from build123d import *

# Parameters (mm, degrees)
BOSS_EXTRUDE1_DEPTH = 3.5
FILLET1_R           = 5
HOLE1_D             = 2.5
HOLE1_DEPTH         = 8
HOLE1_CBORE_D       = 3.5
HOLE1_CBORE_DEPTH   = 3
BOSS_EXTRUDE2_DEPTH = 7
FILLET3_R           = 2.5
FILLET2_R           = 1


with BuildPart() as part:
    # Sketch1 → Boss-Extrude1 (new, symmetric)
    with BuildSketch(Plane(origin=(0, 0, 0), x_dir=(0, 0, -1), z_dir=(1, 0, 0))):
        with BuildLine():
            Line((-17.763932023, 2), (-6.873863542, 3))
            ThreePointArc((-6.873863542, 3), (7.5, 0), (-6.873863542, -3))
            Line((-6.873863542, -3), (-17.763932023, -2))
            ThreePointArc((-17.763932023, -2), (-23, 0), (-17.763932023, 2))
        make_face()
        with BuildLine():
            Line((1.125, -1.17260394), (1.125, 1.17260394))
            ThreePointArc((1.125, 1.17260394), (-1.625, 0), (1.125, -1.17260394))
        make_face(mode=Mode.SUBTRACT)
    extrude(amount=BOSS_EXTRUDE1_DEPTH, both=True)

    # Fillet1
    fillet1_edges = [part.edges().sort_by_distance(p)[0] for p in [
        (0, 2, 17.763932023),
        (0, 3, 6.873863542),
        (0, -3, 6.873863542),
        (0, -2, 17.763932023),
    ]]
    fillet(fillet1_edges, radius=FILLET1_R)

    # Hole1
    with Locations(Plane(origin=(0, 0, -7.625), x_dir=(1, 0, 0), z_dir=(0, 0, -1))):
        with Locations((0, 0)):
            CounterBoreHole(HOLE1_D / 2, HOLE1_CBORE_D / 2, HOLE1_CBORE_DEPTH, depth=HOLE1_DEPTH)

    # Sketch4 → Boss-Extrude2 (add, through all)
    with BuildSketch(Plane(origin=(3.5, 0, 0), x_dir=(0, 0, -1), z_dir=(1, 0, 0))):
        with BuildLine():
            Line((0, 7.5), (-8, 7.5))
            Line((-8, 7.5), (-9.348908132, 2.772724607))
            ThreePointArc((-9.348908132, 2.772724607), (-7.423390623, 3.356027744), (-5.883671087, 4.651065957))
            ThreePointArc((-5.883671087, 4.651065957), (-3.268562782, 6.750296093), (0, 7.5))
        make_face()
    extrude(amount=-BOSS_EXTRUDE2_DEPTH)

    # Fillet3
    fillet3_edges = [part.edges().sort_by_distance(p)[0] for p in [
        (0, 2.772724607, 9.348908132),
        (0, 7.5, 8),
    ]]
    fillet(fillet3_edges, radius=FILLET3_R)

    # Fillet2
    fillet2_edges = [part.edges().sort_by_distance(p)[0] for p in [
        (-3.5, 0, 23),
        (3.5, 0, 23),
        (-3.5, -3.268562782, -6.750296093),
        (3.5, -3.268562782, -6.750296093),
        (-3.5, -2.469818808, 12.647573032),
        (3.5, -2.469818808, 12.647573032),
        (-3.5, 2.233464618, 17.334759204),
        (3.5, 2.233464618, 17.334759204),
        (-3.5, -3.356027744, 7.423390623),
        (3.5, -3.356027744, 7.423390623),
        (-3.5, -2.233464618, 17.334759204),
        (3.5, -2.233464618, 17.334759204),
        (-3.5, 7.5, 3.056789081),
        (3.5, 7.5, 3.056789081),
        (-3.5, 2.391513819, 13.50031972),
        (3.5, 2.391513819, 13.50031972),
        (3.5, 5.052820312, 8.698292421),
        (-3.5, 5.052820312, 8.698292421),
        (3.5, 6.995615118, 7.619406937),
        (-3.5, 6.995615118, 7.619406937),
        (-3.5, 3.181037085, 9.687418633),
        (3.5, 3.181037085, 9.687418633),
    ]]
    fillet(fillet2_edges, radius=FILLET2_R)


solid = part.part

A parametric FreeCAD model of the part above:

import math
import FreeCAD as App
import Part
import Sketcher
from FreeCAD import Vector
Q = App.Units.Quantity


def edges_at(feature, points):
    """Names of the edges that pass closest to the given points."""
    edges = feature.Shape.Edges
    near = lambda p: min(range(len(edges)), key=lambda i: edges[i].distToShape(Part.Vertex(*p))[0])
    return sorted({f"Edge{near(p) + 1}" for p in points})

doc = App.newDocument("Part")
body = doc.addObject("PartDesign::Body", "Body")

# Sketch on YZ plane
sketch1 = doc.addObject("Sketcher::SketchObject", "Sketch")
body.addObject(sketch1)
sketch1.AttachmentSupport = (doc.YZ_Plane, [""])
sketch1.MapMode = "FlatFace"
sketch1.addGeometry([
    Part.LineSegment(Vector(3, 6.9, 0), Vector(2, 17.8, 0)),  # 0
    Part.ArcOfCircle(Part.Circle(Vector(0, 20, 0), Vector(0, 0, 1), 3), math.radians(-48), math.radians(228)),  # 1
    Part.LineSegment(Vector(-2, 17.8, 0), Vector(-3, 6.9, 0)),  # 2
    Part.ArcOfCircle(Part.Circle(Vector(0, 0, 0), Vector(0, 0, 1), 7.5), math.radians(114), math.radians(426)),  # 3
    Part.ArcOfCircle(Part.Circle(Vector(0, 0, 0), Vector(0, 0, 1), 1.6), math.radians(-44), math.radians(224)),  # 4
    Part.LineSegment(Vector(1.2, -1.1, 0), Vector(-1.2, -1.1, 0)),  # 5
], False)
sketch1.addConstraint([
    Sketcher.Constraint("Coincident", 0, 2, 1, 1),
    Sketcher.Constraint("Coincident", 1, 2, 2, 1),
    Sketcher.Constraint("Coincident", 2, 2, 3, 1),
    Sketcher.Constraint("Coincident", 3, 2, 0, 1),
    Sketcher.Constraint("Coincident", 4, 1, 5, 1),
    Sketcher.Constraint("Coincident", 5, 2, 4, 2),
    Sketcher.Constraint("Horizontal", 5),
    Sketcher.Constraint("Coincident", 3, 3, -1, 1),
    Sketcher.Constraint("Coincident", 4, 3, -1, 1),
    Sketcher.Constraint("Symmetric", 0, 2, 1, 2, -2),
    Sketcher.Constraint("Horizontal", 2, 2, 3, 2),
    Sketcher.Constraint("Radius", 1, Q("3 mm")),
    Sketcher.Constraint("Radius", 3, Q("7.5 mm")),
    Sketcher.Constraint("DistanceY", -1, 1, 1, 3, Q("20 mm")),
    Sketcher.Constraint("DistanceX", -1, 1, 0, 2, Q("2 mm")),
    Sketcher.Constraint("DistanceX", 2, 2, -1, 1, Q("3 mm")),
    Sketcher.Constraint("Radius", 4, Q("1.625 mm")),
    Sketcher.Constraint("DistanceY", 4, 1, -1, 1, Q("1.125 mm")),
])
pad1 = doc.addObject("PartDesign::Pad", "Pad")
body.addObject(pad1)
pad1.Profile = sketch1
pad1.Length = 7
pad1.Midplane = True
doc.recompute()

fillet = doc.addObject("PartDesign::Fillet", "Fillet")
body.addObject(fillet)
fillet.Base = (pad1, edges_at(pad1, [
    (0, 2, 17.764),
    (0, 3, 6.874),
    (0, -3, 6.874),
    (0, -2, 17.764),
]))
fillet.Radius = 5

# Sketch on XY plane
sketch2 = doc.addObject("Sketcher::SketchObject", "Sketch001")
body.addObject(sketch2)
sketch2.AttachmentSupport = (doc.XY_Plane, [""])
sketch2.MapMode = "FlatFace"
sketch2.AttachmentOffset = App.Placement(Vector(0, 0, -7.625), App.Rotation())
sketch2.addGeometry(Part.Circle(Vector(0, 0, 0), Vector(0, 0, 1), 1.2), False)
sketch2.addConstraint([
    Sketcher.Constraint("Coincident", 0, 3, -1, 1),
    Sketcher.Constraint("Diameter", 0, Q("2.5 mm")),
])
doc.recompute()
hole = doc.addObject("PartDesign::Hole", "Hole")
body.addObject(hole)
hole.Profile = sketch2
hole.ThreadType = "None"
hole.Diameter = 2.5
hole.DepthType = "Dimension"
hole.Depth = 8
hole.DrillPoint = "Flat"
hole.HoleCutType = "Counterbore"
hole.HoleCutDiameter = 3.5
hole.HoleCutDepth = 3
hole.Reversed = True

# Sketch on YZ plane
sketch3 = doc.addObject("Sketcher::SketchObject", "Sketch002")
body.addObject(sketch3)
sketch3.AttachmentSupport = (doc.YZ_Plane, [""])
sketch3.MapMode = "FlatFace"
sketch3.AttachmentOffset = App.Placement(Vector(0, 0, 3.5), App.Rotation())
sketch3.addGeometry([
    Part.LineSegment(Vector(7.5, 0, 0), Vector(7.5, 8, 0)),
    Part.LineSegment(Vector(7.5, 8, 0), Vector(2.8, 9.3, 0)),
    Part.ArcOfCircle(Part.Circle(Vector(7.8, 9.8, 0), Vector(0, 0, 1), 5), math.radians(-175), math.radians(-128)),
    Part.ArcOfCircle(Part.Circle(Vector(0, 0, 0), Vector(0, 0, 1), 7.5), math.radians(0), math.radians(52)),
], False)
sketch3.addConstraint([
    Sketcher.Constraint("Coincident", 0, 2, 1, 1),
    Sketcher.Constraint("Coincident", 1, 2, 2, 1),
    Sketcher.Constraint("Tangent", 2, 2, 3, 2),
    Sketcher.Constraint("Tangent", 3, 1, 0, 1),
    Sketcher.Constraint("Vertical", 0),
    Sketcher.Constraint("Coincident", 3, 3, -1, 1),
    Sketcher.Constraint("Radius", 2, Q("5 mm")),
    Sketcher.Constraint("Radius", 3, Q("7.5 mm")),
    Sketcher.Constraint("DistanceY", 0, 1, 0, 2, Q("8 mm")),
    Sketcher.Constraint("DistanceY", -1, 1, 2, 3, Q("9.806118 mm")),
    Sketcher.Constraint("DistanceY", -1, 1, 1, 2, Q("9.348908 mm")),
])
pad2 = doc.addObject("PartDesign::Pad", "Pad001")
body.addObject(pad2)
pad2.Profile = sketch3
pad2.Length = 7
pad2.Reversed = True
doc.recompute()

fillet2 = doc.addObject("PartDesign::Fillet", "Fillet001")
body.addObject(fillet2)
fillet2.Base = (pad2, edges_at(pad2, [(0, 2.773, 9.349), (0, 7.5, 8)]))
fillet2.Radius = 2.5
doc.recompute()

fillet3 = doc.addObject("PartDesign::Fillet", "Fillet002")
body.addObject(fillet3)
fillet3.Base = (fillet2, edges_at(fillet2, [
    (-3.5, 0, 23),
    (3.5, 0, 23),
    (-3.5, -3.269, -6.75),
    (3.5, -3.269, -6.75),
    (-3.5, -2.47, 12.648),
    (3.5, -2.47, 12.648),
    (-3.5, 2.233, 17.335),
    (3.5, 2.233, 17.335),
    (-3.5, -3.356, 7.423),
    (3.5, -3.356, 7.423),
    (-3.5, -2.233, 17.335),
    (3.5, -2.233, 17.335),
    (-3.5, 7.5, 3.057),
    (3.5, 7.5, 3.057),
    (-3.5, 2.392, 13.5),
    (3.5, 2.392, 13.5),
    (3.5, 5.053, 8.698),
    (-3.5, 5.053, 8.698),
    (3.5, 6.996, 7.619),
    (-3.5, 6.996, 7.619),
    (-3.5, 3.181, 9.687),
    (3.5, 3.181, 9.687),
]))
fillet3.Radius = 1

doc.recompute()
